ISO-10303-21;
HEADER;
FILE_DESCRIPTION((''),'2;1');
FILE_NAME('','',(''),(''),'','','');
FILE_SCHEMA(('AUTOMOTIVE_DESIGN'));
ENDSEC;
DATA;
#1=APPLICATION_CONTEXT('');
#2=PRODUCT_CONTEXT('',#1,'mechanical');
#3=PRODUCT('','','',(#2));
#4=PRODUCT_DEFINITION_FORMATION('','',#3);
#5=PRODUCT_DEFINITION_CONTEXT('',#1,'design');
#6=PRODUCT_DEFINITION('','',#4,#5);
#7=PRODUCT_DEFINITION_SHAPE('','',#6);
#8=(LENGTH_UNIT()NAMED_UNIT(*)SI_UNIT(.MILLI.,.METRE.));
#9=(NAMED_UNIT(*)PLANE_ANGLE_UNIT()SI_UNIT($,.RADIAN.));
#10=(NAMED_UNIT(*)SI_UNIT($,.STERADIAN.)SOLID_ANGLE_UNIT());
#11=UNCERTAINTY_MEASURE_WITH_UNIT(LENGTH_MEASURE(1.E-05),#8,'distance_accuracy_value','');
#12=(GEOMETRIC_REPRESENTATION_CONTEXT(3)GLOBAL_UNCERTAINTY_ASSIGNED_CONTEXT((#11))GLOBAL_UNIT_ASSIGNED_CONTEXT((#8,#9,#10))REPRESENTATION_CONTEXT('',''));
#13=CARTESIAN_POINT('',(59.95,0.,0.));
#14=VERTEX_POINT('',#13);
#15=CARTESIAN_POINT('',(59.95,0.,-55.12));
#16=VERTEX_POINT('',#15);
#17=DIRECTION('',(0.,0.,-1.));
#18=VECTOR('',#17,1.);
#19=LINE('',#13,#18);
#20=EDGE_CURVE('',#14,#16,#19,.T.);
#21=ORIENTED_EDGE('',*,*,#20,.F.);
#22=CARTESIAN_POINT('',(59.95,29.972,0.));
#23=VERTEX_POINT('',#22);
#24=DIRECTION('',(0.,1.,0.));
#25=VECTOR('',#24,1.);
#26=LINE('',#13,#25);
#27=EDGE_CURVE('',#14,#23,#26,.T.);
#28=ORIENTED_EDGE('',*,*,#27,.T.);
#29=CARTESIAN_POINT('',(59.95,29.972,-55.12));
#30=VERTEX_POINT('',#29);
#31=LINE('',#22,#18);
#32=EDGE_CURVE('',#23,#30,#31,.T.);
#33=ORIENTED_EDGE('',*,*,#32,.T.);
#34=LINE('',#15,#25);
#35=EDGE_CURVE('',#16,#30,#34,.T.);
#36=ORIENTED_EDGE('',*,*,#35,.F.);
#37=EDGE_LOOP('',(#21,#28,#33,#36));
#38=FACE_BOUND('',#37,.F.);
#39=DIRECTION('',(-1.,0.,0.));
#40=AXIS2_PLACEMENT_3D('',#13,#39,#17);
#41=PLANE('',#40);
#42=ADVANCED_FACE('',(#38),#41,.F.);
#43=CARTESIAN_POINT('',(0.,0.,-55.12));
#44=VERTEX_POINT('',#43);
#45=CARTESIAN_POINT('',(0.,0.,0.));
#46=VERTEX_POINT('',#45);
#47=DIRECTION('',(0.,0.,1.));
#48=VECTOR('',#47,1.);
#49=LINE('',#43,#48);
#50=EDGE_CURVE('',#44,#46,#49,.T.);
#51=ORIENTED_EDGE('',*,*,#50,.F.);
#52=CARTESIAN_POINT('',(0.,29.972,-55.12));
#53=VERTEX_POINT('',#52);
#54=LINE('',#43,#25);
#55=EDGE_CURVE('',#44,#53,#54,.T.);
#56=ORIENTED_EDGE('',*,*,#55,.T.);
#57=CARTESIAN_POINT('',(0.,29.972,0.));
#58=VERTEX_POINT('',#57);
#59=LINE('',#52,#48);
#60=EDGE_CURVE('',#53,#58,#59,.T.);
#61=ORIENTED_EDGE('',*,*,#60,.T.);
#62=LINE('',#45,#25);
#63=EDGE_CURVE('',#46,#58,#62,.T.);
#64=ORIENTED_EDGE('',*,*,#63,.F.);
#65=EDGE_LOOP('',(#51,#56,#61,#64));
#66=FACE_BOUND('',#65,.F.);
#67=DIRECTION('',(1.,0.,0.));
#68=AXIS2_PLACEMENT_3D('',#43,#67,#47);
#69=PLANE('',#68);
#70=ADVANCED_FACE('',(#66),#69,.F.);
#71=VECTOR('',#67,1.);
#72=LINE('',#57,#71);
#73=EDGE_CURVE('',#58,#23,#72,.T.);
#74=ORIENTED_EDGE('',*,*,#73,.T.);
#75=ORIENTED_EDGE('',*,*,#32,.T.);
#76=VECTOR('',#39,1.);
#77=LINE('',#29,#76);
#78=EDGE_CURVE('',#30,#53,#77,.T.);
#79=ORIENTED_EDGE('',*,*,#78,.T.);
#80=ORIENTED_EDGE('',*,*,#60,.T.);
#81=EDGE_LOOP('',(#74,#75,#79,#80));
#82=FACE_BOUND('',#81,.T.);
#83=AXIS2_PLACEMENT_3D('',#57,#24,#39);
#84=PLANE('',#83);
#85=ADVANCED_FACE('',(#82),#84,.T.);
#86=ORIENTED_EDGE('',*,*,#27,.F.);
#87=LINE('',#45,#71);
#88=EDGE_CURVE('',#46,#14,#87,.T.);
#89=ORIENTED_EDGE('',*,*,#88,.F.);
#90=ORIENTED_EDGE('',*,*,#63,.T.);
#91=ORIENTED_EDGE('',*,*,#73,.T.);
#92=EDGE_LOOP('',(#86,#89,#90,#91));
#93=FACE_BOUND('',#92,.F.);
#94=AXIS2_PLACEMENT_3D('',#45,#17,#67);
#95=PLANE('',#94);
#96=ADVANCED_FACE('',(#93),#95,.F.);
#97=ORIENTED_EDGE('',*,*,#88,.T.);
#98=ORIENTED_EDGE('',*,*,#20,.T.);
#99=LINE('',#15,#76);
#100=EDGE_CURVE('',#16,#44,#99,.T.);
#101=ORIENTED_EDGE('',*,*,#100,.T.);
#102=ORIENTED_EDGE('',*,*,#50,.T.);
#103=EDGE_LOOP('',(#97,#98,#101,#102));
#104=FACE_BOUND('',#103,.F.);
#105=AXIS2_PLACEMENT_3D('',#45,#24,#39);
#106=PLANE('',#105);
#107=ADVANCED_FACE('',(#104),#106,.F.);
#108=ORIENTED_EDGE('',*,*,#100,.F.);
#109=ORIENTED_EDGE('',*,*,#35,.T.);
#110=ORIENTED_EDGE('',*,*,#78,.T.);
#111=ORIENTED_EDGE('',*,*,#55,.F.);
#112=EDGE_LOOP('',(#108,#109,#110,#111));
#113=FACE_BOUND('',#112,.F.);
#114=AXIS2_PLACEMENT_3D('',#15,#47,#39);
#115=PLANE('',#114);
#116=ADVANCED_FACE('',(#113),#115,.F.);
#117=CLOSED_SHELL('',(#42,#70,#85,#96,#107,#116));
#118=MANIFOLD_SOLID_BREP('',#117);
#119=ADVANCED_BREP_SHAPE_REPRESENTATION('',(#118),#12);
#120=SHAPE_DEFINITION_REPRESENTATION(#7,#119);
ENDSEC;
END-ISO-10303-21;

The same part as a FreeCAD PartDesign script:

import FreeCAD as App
import Part
import Sketcher
Q = App.Units.Quantity

doc = App.newDocument("Part")
body = doc.addObject("PartDesign::Body", "Body")

sketch1 = body.newObject("Sketcher::SketchObject", "Sketch")
sketch1.AttachmentSupport = (doc.getObject("XZ_Plane"), [""])
sketch1.MapMode = "FlatFace"
sketch1.addGeometry(Part.LineSegment(App.Vector(0, -55, 0), App.Vector(0, 0, 0)), False)
sketch1.addGeometry(Part.LineSegment(App.Vector(0, 0, 0), App.Vector(60, 0, 0)), False)
sketch1.addGeometry(Part.LineSegment(App.Vector(60, 0, 0), App.Vector(60, -55, 0)), False)
sketch1.addGeometry(Part.LineSegment(App.Vector(60, -55, 0), App.Vector(0, -55, 0)), False)
sketch1.addConstraint(Sketcher.Constraint("Coincident", 0, 2, 1, 1))
sketch1.addConstraint(Sketcher.Constraint("Coincident", 1, 2, 2, 1))
sketch1.addConstraint(Sketcher.Constraint("Coincident", 2, 2, 3, 1))
sketch1.addConstraint(Sketcher.Constraint("Coincident", 3, 2, 0, 1))
sketch1.addConstraint(Sketcher.Constraint("Vertical", 0))
sketch1.addConstraint(Sketcher.Constraint("Horizontal", 1))
sketch1.addConstraint(Sketcher.Constraint("Vertical", 2))
sketch1.addConstraint(Sketcher.Constraint("Horizontal", 3))
sketch1.addConstraint(Sketcher.Constraint("Coincident", 0, 2, -1, 1))
sketch1.addConstraint(Sketcher.Constraint("DistanceX", 1, 1, 1, 2, Q("59.95 mm")))
sketch1.addConstraint(Sketcher.Constraint("DistanceY", 0, 1, 0, 2, Q("55.12 mm")))
pad1 = body.newObject("PartDesign::Pad", "Pad")
pad1.Profile = sketch1
pad1.Length = Q("1.18 in")
pad1.Reversed = True

doc.recompute()
